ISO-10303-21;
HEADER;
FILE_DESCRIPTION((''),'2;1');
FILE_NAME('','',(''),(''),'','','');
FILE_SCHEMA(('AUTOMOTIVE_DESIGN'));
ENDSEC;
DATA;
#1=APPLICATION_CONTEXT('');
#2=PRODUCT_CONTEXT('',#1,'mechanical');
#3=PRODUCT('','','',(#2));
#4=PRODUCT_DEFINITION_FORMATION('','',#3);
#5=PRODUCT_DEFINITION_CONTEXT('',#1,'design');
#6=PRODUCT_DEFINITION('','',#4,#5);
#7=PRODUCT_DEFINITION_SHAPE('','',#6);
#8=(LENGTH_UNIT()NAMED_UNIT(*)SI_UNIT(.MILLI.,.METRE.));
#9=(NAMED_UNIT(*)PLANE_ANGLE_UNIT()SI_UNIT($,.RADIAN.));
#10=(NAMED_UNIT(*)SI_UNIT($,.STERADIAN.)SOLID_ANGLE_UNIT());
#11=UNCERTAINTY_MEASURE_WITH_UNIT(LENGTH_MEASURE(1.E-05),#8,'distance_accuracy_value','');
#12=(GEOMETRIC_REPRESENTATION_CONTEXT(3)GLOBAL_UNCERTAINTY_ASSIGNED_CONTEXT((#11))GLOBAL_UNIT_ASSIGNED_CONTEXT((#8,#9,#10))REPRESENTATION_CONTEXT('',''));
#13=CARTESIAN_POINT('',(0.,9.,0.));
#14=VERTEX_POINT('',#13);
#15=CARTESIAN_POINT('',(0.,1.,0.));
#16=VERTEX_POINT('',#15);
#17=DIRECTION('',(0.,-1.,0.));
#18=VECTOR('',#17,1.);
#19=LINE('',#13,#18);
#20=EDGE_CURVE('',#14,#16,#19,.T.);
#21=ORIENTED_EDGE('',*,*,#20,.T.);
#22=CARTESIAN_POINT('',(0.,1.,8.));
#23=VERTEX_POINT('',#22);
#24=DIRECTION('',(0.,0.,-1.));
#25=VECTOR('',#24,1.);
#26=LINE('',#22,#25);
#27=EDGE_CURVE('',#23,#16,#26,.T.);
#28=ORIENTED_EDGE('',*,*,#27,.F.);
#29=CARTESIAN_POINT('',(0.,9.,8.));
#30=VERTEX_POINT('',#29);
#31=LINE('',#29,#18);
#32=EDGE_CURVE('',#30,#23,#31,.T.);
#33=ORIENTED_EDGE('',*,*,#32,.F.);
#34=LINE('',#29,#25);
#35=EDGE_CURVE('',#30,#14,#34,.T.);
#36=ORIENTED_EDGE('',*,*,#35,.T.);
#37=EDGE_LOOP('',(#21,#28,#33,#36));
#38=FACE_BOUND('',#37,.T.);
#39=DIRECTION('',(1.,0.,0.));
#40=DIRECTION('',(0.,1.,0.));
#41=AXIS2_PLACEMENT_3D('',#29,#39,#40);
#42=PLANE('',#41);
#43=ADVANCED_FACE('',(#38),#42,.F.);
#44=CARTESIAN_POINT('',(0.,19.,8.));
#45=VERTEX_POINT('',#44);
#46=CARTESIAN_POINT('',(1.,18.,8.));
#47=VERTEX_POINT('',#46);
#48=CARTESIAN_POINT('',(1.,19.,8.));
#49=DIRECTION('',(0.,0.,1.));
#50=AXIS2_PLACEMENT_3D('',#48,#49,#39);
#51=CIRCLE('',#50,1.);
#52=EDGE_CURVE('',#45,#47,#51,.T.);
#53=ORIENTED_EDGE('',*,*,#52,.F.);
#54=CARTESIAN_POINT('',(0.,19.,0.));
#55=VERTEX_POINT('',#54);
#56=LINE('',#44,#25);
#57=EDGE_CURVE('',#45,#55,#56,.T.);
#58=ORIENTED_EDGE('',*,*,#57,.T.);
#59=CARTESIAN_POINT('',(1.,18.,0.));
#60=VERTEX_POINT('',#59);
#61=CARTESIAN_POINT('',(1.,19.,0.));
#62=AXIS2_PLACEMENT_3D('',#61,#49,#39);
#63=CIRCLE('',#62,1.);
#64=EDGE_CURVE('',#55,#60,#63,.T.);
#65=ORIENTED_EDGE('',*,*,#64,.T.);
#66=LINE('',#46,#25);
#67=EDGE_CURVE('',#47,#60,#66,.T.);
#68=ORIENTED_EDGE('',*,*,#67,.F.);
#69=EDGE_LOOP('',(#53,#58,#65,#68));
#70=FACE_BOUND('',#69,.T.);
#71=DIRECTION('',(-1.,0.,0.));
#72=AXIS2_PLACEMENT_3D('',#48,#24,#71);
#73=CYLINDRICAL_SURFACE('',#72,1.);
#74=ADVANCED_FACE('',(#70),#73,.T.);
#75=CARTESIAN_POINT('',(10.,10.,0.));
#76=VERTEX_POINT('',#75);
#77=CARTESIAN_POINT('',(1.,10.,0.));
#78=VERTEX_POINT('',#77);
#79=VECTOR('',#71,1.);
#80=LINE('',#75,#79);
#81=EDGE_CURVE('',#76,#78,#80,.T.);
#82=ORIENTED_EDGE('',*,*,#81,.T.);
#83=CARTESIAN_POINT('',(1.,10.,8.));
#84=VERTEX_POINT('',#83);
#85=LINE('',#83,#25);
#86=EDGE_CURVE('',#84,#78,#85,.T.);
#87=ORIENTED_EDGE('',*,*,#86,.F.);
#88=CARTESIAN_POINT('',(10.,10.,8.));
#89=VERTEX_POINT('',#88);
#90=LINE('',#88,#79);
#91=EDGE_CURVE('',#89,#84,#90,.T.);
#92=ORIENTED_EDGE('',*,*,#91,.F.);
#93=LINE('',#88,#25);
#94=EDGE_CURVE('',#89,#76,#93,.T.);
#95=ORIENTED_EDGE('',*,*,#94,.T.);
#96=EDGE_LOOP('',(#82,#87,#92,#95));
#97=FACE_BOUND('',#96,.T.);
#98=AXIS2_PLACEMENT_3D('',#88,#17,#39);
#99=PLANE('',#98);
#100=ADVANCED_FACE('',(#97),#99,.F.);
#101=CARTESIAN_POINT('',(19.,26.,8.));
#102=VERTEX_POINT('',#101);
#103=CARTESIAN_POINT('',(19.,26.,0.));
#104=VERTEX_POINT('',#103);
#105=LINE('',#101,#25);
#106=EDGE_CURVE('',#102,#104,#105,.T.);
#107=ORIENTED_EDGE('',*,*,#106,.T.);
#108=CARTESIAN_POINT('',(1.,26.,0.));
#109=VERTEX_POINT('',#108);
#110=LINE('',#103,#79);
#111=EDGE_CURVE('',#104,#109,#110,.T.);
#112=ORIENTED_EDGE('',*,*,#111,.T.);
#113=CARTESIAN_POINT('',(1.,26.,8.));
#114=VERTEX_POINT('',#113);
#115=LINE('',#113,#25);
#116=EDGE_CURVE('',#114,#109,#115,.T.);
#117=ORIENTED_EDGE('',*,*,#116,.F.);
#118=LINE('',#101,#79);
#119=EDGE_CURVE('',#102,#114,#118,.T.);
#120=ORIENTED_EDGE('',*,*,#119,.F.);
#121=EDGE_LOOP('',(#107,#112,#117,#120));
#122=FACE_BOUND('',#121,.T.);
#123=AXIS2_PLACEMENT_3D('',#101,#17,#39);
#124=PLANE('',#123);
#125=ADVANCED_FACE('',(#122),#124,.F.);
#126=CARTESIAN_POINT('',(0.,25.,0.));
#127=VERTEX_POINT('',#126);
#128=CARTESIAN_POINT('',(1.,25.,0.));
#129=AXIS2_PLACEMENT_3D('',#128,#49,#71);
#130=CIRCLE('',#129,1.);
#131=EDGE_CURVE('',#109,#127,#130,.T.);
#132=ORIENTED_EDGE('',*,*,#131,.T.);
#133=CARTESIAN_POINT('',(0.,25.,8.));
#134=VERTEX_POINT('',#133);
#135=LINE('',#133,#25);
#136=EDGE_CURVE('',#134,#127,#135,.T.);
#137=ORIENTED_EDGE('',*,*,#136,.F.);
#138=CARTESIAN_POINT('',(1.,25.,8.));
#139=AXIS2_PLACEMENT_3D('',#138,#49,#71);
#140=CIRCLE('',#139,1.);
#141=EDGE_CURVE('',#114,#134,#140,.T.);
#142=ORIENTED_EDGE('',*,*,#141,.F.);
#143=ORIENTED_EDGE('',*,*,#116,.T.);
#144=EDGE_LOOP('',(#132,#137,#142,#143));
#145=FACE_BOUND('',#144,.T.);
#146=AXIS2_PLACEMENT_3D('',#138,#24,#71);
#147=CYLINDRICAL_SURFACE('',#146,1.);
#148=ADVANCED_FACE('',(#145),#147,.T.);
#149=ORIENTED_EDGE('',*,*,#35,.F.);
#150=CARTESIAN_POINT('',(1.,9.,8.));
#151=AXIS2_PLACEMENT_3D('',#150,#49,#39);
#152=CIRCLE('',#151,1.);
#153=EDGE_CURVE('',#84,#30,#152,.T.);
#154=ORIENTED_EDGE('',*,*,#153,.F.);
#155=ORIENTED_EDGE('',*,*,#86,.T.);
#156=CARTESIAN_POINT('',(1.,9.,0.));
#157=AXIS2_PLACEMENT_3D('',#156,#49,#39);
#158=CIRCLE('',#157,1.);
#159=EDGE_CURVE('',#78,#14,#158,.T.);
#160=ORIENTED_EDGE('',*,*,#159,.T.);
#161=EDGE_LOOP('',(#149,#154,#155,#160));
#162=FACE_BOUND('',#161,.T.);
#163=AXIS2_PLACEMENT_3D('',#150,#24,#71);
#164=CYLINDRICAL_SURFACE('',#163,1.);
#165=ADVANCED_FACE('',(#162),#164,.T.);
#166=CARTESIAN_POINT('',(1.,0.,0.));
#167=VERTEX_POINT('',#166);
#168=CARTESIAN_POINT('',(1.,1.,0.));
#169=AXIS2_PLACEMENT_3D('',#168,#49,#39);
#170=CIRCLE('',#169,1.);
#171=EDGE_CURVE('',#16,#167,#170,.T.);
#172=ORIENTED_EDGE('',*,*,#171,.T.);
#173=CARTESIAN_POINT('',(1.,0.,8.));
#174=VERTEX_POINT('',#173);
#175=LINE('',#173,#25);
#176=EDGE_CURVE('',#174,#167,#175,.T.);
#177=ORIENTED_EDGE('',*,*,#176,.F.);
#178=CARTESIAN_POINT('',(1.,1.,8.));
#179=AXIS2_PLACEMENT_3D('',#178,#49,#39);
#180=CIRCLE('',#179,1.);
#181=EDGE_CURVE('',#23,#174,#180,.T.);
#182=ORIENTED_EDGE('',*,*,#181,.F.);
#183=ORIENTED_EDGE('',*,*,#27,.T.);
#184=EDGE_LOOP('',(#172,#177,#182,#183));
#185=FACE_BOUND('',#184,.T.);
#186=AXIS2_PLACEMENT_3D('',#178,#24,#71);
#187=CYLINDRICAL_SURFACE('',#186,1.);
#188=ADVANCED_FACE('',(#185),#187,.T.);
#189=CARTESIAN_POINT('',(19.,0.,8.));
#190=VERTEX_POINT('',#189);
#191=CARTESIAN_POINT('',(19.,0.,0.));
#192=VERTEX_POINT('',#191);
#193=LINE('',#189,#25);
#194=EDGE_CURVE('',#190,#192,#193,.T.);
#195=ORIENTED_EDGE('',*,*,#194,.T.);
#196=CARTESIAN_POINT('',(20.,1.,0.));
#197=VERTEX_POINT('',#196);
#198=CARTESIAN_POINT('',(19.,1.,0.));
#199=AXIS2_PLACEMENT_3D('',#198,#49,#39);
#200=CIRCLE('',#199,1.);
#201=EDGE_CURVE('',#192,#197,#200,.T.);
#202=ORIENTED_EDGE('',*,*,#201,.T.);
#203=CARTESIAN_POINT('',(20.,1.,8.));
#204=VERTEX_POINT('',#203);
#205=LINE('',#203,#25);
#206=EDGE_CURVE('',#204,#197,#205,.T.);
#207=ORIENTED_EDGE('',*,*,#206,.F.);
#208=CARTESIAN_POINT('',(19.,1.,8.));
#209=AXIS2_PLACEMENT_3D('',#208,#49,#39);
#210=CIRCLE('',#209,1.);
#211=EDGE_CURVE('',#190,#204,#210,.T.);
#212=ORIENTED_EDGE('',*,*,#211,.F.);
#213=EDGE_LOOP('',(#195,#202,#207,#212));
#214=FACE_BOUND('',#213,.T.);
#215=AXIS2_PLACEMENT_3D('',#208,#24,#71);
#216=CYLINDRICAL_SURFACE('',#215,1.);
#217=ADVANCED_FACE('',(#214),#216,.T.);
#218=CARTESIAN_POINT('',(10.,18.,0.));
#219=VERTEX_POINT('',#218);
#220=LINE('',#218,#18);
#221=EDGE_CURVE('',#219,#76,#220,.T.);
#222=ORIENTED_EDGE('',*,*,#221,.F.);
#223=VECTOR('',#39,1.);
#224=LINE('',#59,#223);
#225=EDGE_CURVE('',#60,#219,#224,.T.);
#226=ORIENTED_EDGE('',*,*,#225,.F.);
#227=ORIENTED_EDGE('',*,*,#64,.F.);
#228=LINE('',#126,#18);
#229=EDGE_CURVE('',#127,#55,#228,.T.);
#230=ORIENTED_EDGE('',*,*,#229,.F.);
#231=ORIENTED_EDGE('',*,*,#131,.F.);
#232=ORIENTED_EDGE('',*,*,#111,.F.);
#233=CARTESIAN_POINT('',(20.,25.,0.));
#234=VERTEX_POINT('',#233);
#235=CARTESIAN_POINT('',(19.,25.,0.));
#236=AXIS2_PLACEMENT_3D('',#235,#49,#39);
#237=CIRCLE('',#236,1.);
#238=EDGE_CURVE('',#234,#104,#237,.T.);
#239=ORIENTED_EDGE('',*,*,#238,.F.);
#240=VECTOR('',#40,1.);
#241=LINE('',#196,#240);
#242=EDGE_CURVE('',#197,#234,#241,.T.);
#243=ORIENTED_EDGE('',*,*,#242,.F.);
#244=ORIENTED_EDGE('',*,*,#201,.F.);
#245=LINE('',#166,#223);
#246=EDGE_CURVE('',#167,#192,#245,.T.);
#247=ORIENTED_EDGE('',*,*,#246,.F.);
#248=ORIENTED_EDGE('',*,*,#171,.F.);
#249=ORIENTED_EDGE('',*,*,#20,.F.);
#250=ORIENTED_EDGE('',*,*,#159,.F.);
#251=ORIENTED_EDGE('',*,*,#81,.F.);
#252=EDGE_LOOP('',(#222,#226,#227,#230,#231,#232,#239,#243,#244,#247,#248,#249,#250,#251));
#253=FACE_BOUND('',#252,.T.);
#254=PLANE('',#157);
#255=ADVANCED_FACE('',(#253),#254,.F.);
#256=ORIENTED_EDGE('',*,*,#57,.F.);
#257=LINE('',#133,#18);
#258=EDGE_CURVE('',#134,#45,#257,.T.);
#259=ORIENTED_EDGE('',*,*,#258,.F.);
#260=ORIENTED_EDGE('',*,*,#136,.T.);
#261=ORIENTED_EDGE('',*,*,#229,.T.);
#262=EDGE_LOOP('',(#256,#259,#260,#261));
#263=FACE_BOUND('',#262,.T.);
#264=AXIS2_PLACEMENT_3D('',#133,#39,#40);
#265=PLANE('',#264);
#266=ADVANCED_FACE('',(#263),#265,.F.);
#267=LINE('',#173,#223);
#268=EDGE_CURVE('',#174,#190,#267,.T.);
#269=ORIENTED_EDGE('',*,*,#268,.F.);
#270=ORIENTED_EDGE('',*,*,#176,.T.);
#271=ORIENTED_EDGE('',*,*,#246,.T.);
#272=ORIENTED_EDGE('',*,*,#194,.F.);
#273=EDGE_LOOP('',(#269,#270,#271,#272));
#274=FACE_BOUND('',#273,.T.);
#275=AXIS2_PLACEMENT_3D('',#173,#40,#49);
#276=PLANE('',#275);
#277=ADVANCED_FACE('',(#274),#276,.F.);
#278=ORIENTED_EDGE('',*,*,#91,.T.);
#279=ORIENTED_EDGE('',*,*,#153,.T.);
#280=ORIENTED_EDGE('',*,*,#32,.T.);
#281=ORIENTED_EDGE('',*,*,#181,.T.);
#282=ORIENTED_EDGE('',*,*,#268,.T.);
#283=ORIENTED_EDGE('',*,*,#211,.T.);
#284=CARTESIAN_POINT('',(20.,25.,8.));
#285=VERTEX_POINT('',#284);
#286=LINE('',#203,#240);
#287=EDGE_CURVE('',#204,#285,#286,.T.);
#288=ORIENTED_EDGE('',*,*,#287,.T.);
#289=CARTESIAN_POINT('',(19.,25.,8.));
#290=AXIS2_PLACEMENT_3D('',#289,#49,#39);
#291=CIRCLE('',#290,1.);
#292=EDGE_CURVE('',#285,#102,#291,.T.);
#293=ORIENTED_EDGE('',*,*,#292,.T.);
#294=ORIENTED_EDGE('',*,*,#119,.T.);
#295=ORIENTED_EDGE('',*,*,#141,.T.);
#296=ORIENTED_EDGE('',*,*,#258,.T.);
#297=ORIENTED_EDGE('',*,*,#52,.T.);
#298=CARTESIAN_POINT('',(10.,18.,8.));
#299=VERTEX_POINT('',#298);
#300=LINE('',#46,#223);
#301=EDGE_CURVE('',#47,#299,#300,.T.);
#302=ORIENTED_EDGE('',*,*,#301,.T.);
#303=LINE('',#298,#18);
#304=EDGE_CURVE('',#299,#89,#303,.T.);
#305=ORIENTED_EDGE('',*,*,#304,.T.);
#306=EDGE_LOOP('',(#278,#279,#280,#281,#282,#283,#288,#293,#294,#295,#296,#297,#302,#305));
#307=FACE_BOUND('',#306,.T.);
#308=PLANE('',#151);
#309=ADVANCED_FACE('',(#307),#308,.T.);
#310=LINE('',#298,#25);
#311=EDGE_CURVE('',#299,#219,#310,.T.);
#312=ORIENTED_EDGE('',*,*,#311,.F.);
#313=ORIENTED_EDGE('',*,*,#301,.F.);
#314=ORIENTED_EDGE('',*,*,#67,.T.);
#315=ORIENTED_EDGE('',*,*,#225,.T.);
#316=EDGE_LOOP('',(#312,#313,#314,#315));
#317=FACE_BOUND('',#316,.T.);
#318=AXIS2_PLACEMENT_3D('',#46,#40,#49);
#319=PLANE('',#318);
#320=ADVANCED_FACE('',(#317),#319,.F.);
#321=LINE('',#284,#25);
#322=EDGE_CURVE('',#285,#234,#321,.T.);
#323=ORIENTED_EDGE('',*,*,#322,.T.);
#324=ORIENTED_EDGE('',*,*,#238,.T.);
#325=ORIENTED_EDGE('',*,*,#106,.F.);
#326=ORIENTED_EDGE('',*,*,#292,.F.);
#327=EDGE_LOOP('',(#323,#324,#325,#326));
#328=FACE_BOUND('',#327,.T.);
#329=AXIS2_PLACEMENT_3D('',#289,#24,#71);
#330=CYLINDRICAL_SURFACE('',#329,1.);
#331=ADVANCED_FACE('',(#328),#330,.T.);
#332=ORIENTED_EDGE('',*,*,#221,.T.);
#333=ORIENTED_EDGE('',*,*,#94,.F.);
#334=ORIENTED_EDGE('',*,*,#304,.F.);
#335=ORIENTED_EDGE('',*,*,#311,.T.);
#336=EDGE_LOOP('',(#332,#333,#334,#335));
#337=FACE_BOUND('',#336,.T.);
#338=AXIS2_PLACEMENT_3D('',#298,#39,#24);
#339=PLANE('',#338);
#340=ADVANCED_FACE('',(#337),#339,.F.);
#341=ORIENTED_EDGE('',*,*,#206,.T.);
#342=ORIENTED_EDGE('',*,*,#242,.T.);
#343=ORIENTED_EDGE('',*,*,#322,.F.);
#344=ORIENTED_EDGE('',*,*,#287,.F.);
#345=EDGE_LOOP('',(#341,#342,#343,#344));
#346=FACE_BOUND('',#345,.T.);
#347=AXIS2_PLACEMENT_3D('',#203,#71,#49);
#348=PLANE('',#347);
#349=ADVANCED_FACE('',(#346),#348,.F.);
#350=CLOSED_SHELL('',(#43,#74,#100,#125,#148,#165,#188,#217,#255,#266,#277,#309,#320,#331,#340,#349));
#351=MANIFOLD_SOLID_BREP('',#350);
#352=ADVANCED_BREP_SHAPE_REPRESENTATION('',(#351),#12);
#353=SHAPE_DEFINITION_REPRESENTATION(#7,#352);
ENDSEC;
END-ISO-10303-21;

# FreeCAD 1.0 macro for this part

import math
import FreeCAD as App
import Part
import Sketcher
from FreeCAD import Vector

doc = App.newDocument("Part")
body = doc.addObject("PartDesign::Body", "Body")

# Sketch on XY plane
sketch1 = body.newObject("Sketcher::SketchObject", "Sketch")
sketch1.AttachmentSupport = (doc.getObject("XY_Plane"), [""])
sketch1.MapMode = "FlatFace"
sketch1.addGeometry([
    Part.LineSegment(Vector(1, 0, 0), Vector(19, 0, 0)),  # 0
    Part.ArcOfCircle(Part.Circle(Vector(19, 1, 0), Vector(0, 0, 1), 1), math.radians(-90), math.radians(0)),  # 1
    Part.LineSegment(Vector(20, 1, 0), Vector(20, 25, 0)),  # 2
    Part.ArcOfCircle(Part.Circle(Vector(19, 25, 0), Vector(0, 0, 1), 1), math.radians(0), math.radians(90)),  # 3
    Part.LineSegment(Vector(19, 26, 0), Vector(1, 26, 0)),  # 4
    Part.ArcOfCircle(Part.Circle(Vector(1, 25, 0), Vector(0, 0, 1), 1), math.radians(90), math.radians(180)),  # 5
    Part.LineSegment(Vector(0, 25, 0), Vector(0, 19, 0)),  # 6
    Part.ArcOfCircle(Part.Circle(Vector(1, 19, 0), Vector(0, 0, 1), 1), math.radians(-180), math.radians(-90)),  # 7
    Part.LineSegment(Vector(1, 18, 0), Vector(10, 18, 0)),  # 8
    Part.LineSegment(Vector(10, 18, 0), Vector(10, 10, 0)),  # 9
    Part.LineSegment(Vector(10, 10, 0), Vector(1, 10, 0)),  # 10
    Part.ArcOfCircle(Part.Circle(Vector(1, 9, 0), Vector(0, 0, 1), 1), math.radians(90), math.radians(180)),  # 11
    Part.LineSegment(Vector(0, 9, 0), Vector(0, 1, 0)),  # 12
    Part.ArcOfCircle(Part.Circle(Vector(1, 1, 0), Vector(0, 0, 1), 1), math.radians(-180), math.radians(-90)),  # 13
], False)
sketch1.addConstraint([
    Sketcher.Constraint("Tangent", 0, 2, 1, 1),
    Sketcher.Constraint("Tangent", 1, 2, 2, 1),
    Sketcher.Constraint("Tangent", 2, 2, 3, 1),
    Sketcher.Constraint("Tangent", 3, 2, 4, 1),
    Sketcher.Constraint("Tangent", 4, 2, 5, 1),
    Sketcher.Constraint("Tangent", 5, 2, 6, 1),
    Sketcher.Constraint("Tangent", 6, 2, 7, 1),
    Sketcher.Constraint("Tangent", 7, 2, 8, 1),
    Sketcher.Constraint("Coincident", 8, 2, 9, 1),
    Sketcher.Constraint("Coincident", 9, 2, 10, 1),
    Sketcher.Constraint("Tangent", 10, 2, 11, 1),
    Sketcher.Constraint("Tangent", 11, 2, 12, 1),
    Sketcher.Constraint("Tangent", 12, 2, 13, 1),
    Sketcher.Constraint("Tangent", 13, 2, 0, 1),
    Sketcher.Constraint("Horizontal", 0),
    Sketcher.Constraint("Vertical", 2),
    Sketcher.Constraint("Horizontal", 4),
    Sketcher.Constraint("Vertical", 6),
    Sketcher.Constraint("Horizontal", 8),
    Sketcher.Constraint("Vertical", 9),
    Sketcher.Constraint("Horizontal", 10),
    Sketcher.Constraint("Vertical", 12),
    Sketcher.Constraint("Equal", 1, 3),
    Sketcher.Constraint("Equal", 3, 5),
    Sketcher.Constraint("Equal", 5, 7),
    Sketcher.Constraint("Equal", 7, 11),
    Sketcher.Constraint("Equal", 11, 13),
    Sketcher.Constraint("PointOnObject", 0, 2, -1),
    Sketcher.Constraint("PointOnObject", 5, 2, -2),
    Sketcher.Constraint("PointOnObject", 11, 2, -2),
    Sketcher.Constraint("Equal", 9, 12),
    Sketcher.Constraint("Radius", 1, 1.0),
    Sketcher.Constraint("DistanceX", 0, 1, 0, 2, 18.0),
    Sketcher.Constraint("DistanceX", 8, 1, 8, 2, 9.0),
    Sketcher.Constraint("DistanceY", 2, 1, 2, 2, 24.0),
    Sketcher.Constraint("DistanceY", 6, 2, 6, 1, 6.0),
])
pad1 = body.newObject("PartDesign::Pad", "Pad")
pad1.Profile = sketch1
pad1.Length = 8

doc.recompute()
